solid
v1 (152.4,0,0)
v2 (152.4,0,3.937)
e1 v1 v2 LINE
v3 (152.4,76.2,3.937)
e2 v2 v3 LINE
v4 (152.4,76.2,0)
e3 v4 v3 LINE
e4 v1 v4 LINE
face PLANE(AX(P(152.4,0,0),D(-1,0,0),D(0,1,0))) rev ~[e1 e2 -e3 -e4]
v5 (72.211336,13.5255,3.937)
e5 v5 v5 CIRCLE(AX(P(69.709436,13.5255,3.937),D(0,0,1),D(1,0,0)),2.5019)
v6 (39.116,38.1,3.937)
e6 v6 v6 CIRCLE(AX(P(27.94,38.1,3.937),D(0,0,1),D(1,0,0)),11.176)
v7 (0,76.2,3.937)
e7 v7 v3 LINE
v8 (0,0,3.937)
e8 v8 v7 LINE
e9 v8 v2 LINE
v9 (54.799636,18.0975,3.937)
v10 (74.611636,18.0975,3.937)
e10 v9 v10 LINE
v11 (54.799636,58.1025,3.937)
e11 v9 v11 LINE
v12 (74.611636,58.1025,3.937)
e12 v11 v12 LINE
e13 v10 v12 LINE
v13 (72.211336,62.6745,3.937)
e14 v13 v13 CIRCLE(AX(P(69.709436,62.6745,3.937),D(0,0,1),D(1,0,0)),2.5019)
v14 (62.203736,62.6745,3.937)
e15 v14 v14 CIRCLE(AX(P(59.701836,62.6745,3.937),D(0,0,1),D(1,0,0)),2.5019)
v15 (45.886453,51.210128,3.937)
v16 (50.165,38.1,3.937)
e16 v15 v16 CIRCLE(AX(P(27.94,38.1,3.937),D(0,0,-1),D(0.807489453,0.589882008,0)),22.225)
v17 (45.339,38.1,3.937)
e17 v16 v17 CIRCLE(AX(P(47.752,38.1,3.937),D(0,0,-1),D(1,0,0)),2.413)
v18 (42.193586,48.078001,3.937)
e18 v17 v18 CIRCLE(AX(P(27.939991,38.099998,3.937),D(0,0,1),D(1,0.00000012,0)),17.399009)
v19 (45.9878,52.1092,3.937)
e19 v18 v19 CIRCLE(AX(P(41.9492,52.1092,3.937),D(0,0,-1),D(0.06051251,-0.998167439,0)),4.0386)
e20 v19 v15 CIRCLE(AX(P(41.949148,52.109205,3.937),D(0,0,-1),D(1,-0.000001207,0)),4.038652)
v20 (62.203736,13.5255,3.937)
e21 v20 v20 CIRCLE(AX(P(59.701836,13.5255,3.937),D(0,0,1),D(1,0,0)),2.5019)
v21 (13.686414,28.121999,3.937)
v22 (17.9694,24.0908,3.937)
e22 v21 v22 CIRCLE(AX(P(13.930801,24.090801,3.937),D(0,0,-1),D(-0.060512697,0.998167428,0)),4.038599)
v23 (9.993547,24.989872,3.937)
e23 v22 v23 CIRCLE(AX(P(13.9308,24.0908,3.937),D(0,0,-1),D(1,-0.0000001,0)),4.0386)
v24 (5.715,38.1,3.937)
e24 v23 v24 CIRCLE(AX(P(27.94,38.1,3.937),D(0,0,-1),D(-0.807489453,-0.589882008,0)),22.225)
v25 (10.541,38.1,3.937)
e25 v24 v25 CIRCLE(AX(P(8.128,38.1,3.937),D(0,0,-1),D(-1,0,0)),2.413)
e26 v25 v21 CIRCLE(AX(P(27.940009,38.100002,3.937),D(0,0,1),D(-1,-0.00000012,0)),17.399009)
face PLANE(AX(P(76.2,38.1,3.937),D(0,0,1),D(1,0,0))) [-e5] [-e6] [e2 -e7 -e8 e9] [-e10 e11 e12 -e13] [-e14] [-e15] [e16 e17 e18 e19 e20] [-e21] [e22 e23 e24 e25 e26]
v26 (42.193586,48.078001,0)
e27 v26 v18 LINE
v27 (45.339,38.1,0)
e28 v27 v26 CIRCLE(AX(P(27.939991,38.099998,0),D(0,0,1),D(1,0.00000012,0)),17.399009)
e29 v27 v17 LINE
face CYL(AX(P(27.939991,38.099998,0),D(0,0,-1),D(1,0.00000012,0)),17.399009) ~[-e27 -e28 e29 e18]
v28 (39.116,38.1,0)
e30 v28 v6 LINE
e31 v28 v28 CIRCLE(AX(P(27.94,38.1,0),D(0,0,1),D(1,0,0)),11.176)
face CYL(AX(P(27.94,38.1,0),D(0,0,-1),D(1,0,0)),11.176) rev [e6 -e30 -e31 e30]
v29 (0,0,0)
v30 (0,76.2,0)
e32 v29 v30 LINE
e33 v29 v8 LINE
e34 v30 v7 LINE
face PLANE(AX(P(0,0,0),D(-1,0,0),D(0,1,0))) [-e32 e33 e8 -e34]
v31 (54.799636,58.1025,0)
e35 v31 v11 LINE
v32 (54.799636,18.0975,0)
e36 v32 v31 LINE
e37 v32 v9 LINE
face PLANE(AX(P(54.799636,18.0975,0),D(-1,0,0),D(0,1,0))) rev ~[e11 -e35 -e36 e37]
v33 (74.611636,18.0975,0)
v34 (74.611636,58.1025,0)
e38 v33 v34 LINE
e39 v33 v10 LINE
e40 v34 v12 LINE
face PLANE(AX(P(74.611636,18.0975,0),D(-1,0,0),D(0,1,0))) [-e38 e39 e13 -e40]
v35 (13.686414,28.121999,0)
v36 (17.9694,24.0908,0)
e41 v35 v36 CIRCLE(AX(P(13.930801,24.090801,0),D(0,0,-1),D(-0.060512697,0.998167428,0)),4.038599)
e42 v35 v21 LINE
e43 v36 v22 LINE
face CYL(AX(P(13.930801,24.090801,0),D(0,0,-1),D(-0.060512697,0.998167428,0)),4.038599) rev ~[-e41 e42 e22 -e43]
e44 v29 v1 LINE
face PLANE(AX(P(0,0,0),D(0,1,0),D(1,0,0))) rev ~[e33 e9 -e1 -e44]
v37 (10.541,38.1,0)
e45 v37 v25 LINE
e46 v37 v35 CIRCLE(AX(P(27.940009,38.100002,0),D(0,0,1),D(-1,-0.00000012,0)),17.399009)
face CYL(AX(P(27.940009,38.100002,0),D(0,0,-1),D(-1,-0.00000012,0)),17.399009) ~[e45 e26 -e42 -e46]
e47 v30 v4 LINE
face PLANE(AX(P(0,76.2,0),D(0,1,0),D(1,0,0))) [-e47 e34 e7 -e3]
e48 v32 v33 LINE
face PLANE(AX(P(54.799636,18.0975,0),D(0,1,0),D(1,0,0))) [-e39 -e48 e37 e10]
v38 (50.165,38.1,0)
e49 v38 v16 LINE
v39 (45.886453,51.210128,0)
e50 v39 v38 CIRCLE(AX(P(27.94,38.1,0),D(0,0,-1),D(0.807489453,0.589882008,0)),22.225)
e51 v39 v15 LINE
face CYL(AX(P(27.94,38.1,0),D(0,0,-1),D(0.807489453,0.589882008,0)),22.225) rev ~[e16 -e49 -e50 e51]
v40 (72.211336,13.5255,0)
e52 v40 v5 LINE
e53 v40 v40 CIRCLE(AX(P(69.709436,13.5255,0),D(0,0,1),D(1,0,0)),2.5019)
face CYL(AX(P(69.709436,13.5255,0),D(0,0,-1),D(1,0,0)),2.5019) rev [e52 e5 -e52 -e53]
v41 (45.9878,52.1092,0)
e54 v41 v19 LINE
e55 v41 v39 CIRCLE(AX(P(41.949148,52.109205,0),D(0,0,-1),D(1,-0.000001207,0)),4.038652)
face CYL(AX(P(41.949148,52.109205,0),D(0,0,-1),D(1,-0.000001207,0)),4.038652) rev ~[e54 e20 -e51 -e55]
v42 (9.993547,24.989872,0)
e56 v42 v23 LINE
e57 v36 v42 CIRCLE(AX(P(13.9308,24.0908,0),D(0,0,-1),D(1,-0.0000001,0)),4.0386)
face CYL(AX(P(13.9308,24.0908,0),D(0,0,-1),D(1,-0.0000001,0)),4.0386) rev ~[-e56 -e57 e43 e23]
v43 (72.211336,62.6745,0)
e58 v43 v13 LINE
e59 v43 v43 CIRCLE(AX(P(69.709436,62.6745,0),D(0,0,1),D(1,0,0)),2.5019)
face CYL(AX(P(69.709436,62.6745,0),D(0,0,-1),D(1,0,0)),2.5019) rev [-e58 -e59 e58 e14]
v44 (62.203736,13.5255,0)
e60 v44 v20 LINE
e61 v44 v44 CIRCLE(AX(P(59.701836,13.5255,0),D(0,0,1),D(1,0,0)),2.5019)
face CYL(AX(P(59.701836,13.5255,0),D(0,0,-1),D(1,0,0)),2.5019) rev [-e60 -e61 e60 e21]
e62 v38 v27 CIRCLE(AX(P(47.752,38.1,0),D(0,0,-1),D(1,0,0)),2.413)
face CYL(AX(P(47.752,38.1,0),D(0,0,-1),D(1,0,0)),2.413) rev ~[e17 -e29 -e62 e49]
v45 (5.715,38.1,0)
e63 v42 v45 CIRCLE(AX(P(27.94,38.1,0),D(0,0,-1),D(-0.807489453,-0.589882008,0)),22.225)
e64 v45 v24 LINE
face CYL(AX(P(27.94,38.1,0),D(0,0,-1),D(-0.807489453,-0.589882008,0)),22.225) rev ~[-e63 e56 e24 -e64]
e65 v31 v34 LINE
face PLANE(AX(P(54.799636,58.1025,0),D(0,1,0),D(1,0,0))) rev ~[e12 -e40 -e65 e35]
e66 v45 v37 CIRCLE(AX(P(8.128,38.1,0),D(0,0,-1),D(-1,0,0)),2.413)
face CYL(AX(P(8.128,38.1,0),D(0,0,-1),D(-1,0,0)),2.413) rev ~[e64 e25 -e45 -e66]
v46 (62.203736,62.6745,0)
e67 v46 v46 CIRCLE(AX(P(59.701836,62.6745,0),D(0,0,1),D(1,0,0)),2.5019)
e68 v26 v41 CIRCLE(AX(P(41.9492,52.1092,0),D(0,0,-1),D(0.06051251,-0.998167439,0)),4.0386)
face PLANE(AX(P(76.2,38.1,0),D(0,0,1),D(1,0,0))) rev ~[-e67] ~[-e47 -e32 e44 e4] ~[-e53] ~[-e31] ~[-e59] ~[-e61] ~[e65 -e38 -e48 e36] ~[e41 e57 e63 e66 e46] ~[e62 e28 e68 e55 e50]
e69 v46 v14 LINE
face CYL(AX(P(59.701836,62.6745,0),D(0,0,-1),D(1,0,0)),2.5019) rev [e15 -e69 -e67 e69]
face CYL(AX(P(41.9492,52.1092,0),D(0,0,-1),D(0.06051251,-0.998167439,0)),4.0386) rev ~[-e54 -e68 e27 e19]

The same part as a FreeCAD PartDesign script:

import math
import FreeCAD as App
import Part
import Sketcher
Q = App.Units.Quantity

doc = App.newDocument("Part")
body = doc.addObject("PartDesign::Body", "Body")

sketch1 = body.newObject("Sketcher::SketchObject", "Sketch")
sketch1.AttachmentSupport = (doc.getObject("XY_Plane"), [""])
sketch1.MapMode = "FlatFace"
sketch1.addGeometry([
    Part.LineSegment(App.Vector(0, 76.2, 0), App.Vector(0, 0, 0)),
    Part.LineSegment(App.Vector(0, 0, 0), App.Vector(152.4, 0, 0)),
    Part.LineSegment(App.Vector(152.4, 0, 0), App.Vector(152.4, 76.2, 0)),
    Part.LineSegment(App.Vector(152.4, 76.2, 0), App.Vector(0, 76.2, 0)),
    Part.ArcOfCircle(Part.Circle(App.Vector(27.9, 38.1, 0), App.Vector(0, 0, 1), 22.2), math.radians(180), math.radians(216)),
    Part.ArcOfCircle(Part.Circle(App.Vector(8.1, 38.1, 0), App.Vector(0, 0, 1), 2.4), math.radians(0), math.radians(180)),
    Part.ArcOfCircle(Part.Circle(App.Vector(27.9, 38.1, 0), App.Vector(0, 0, 1), 17.4), math.radians(-180), math.radians(-145)),
    Part.ArcOfCircle(Part.Circle(App.Vector(13.9, 24.1, 0), App.Vector(0, 0, 1), 4), math.radians(0), math.radians(93)),
    Part.ArcOfCircle(Part.Circle(App.Vector(13.9, 24.1, 0), App.Vector(0, 0, 1), 4), math.radians(167), math.radians(360)),
    Part.Circle(App.Vector(59.7, 13.5, 0), App.Vector(0, 0, 1), 2.5),
    Part.Circle(App.Vector(69.7, 13.5, 0), App.Vector(0, 0, 1), 2.5),
    Part.Circle(App.Vector(27.9, 38.1, 0), App.Vector(0, 0, 1), 11.2),
    Part.ArcOfCircle(Part.Circle(App.Vector(41.9, 52.1, 0), App.Vector(0, 0, 1), 4), math.radians(-12.86), math.radians(0)),
    Part.ArcOfCircle(Part.Circle(App.Vector(27.9, 38.1, 0), App.Vector(0, 0, 1), 22.2), math.radians(0), math.radians(36)),
    Part.ArcOfCircle(Part.Circle(App.Vector(47.8, 38.1, 0), App.Vector(0, 0, 1), 2.4), math.radians(180), math.radians(360)),
    Part.ArcOfCircle(Part.Circle(App.Vector(27.9, 38.1, 0), App.Vector(0, 0, 1), 17.4), math.radians(0), math.radians(35)),
    Part.ArcOfCircle(Part.Circle(App.Vector(41.9, 52.1, 0), App.Vector(0, 0, 1), 4), math.radians(0), math.radians(273)),
    Part.LineSegment(App.Vector(74.6, 18.1, 0), App.Vector(54.8, 18.1, 0)),
    Part.LineSegment(App.Vector(54.8, 18.1, 0), App.Vector(54.8, 58.1, 0)),
    Part.LineSegment(App.Vector(54.8, 58.1, 0), App.Vector(74.6, 58.1, 0)),
    Part.LineSegment(App.Vector(74.6, 58.1, 0), App.Vector(74.6, 18.1, 0)),
    Part.Circle(App.Vector(59.7, 62.7, 0), App.Vector(0, 0, 1), 2.5),
    Part.Circle(App.Vector(69.7, 62.7, 0), App.Vector(0, 0, 1), 2.5),
], False)
sketch1.addConstraint([
    Sketcher.Constraint("Coincident", 0, 2, 1, 1),
    Sketcher.Constraint("Coincident", 1, 2, 2, 1),
    Sketcher.Constraint("Coincident", 2, 2, 3, 1),
    Sketcher.Constraint("Coincident", 3, 2, 0, 1),
    Sketcher.Constraint("Tangent", 4, 1, 5, 2),
    Sketcher.Constraint("Tangent", 5, 1, 6, 1),
    Sketcher.Constraint("Coincident", 6, 2, 7, 2),
    Sketcher.Constraint("Tangent", 7, 1, 8, 2),
    Sketcher.Constraint("Coincident", 8, 1, 4, 2),
    Sketcher.Constraint("Coincident", 12, 1, 13, 2),
    Sketcher.Constraint("Tangent", 13, 1, 14, 2),
    Sketcher.Constraint("Tangent", 14, 1, 15, 1),
    Sketcher.Constraint("Coincident", 15, 2, 16, 2),
    Sketcher.Constraint("Tangent", 16, 1, 12, 2),
    Sketcher.Constraint("Coincident", 17, 2, 18, 1),
    Sketcher.Constraint("Coincident", 18, 2, 19, 1),
    Sketcher.Constraint("Coincident", 19, 2, 20, 1),
    Sketcher.Constraint("Coincident", 20, 2, 17, 1),
    Sketcher.Constraint("Vertical", 0),
    Sketcher.Constraint("Horizontal", 1),
    Sketcher.Constraint("Vertical", 2),
    Sketcher.Constraint("Horizontal", 3),
    Sketcher.Constraint("Horizontal", 17),
    Sketcher.Constraint("Vertical", 18),
    Sketcher.Constraint("Horizontal", 19),
    Sketcher.Constraint("Vertical", 20),
    Sketcher.Constraint("Coincident", 0, 2, -1, 1),
    Sketcher.Constraint("Coincident", 6, 3, 4, 3),
    Sketcher.Constraint("Coincident", 11, 3, 4, 3),
    Sketcher.Constraint("Coincident", 13, 3, 4, 3),
    Sketcher.Constraint("Coincident", 15, 3, 4, 3),
    Sketcher.Constraint("Equal", 7, 8),
    Sketcher.Constraint("Equal", 9, 10),
    Sketcher.Constraint("Equal", 4, 13),
    Sketcher.Constraint("Equal", 5, 14),
    Sketcher.Constraint("Equal", 8, 16),
    Sketcher.Constraint("Equal", 10, 21),
    Sketcher.Constraint("Equal", 21, 22),
    Sketcher.Constraint("Horizontal", 4, 3, 5, 3),
    Sketcher.Constraint("Horizontal", 9, 3, 10, 3),
    Sketcher.Constraint("Horizontal", 13, 3, 14, 3),
    Sketcher.Constraint("Horizontal", 21, 3, 22, 3),
    Sketcher.Constraint("Horizontal", 8, 3, 7, 1),
    Sketcher.Constraint("Vertical", 9, 3, 21, 3),
    Sketcher.Constraint("Vertical", 10, 3, 22, 3),
    Sketcher.Constraint("Diameter", 11, Q("0.88 in")),
    Sketcher.Constraint("DistanceX", 1, 1, 1, 2, Q("6 in")),
    Sketcher.Constraint("DistanceY", 0, 2, 0, 1, Q("3 in")),
    Sketcher.Constraint("Diameter", 9, Q("0.197 in")),
    Sketcher.Constraint("Radius", 4, Q("0.875 in")),
    Sketcher.Constraint("Radius", 5, Q("0.095 in")),
    Sketcher.Constraint("Radius", 7, Q("0.159 in")),
    Sketcher.Constraint("DistanceX", 17, 2, 17, 1, Q("0.78 in")),
    Sketcher.Constraint("DistanceX", -1, 1, 4, 3, Q("1.1 in")),
    Sketcher.Constraint("DistanceY", -1, 1, 4, 3, Q("1.5 in")),
    Sketcher.Constraint("DistanceY", 18, 1, 18, 2, Q("1.575 in")),
    Sketcher.Constraint("DistanceY", 9, 3, 17, 2, Q("0.18 in")),
    Sketcher.Constraint("DistanceY", 18, 2, 21, 3, Q("0.18 in")),
    Sketcher.Constraint("Radius", 12, 4.038652),
    Sketcher.Constraint("DistanceX", 9, 3, 10, 3, Q("0.394 in")),
    Sketcher.Constraint("DistanceX", 17, 2, 9, 3, Q("0.193 in")),
    Sketcher.Constraint("DistanceY", -1, 1, 9, 3, Q("0.5325 in")),
    Sketcher.Constraint("DistanceX", -1, 1, 7, 3, 13.930801),
    Sketcher.Constraint("DistanceY", -1, 1, 7, 3, 24.090801),
    Sketcher.Constraint("DistanceX", -1, 1, 16, 3, 41.9492),
    Sketcher.Constraint("DistanceY", -1, 1, 16, 3, 52.1092),
    Sketcher.Constraint("DistanceY", -1, 1, 16, 1, 52.1092),
    Sketcher.Constraint("DistanceX", -1, 1, 9, 3, 59.701836),
])
pad1 = body.newObject("PartDesign::Pad", "Pad")
pad1.Profile = sketch1
pad1.Length = Q("0.155 in")

doc.recompute()
